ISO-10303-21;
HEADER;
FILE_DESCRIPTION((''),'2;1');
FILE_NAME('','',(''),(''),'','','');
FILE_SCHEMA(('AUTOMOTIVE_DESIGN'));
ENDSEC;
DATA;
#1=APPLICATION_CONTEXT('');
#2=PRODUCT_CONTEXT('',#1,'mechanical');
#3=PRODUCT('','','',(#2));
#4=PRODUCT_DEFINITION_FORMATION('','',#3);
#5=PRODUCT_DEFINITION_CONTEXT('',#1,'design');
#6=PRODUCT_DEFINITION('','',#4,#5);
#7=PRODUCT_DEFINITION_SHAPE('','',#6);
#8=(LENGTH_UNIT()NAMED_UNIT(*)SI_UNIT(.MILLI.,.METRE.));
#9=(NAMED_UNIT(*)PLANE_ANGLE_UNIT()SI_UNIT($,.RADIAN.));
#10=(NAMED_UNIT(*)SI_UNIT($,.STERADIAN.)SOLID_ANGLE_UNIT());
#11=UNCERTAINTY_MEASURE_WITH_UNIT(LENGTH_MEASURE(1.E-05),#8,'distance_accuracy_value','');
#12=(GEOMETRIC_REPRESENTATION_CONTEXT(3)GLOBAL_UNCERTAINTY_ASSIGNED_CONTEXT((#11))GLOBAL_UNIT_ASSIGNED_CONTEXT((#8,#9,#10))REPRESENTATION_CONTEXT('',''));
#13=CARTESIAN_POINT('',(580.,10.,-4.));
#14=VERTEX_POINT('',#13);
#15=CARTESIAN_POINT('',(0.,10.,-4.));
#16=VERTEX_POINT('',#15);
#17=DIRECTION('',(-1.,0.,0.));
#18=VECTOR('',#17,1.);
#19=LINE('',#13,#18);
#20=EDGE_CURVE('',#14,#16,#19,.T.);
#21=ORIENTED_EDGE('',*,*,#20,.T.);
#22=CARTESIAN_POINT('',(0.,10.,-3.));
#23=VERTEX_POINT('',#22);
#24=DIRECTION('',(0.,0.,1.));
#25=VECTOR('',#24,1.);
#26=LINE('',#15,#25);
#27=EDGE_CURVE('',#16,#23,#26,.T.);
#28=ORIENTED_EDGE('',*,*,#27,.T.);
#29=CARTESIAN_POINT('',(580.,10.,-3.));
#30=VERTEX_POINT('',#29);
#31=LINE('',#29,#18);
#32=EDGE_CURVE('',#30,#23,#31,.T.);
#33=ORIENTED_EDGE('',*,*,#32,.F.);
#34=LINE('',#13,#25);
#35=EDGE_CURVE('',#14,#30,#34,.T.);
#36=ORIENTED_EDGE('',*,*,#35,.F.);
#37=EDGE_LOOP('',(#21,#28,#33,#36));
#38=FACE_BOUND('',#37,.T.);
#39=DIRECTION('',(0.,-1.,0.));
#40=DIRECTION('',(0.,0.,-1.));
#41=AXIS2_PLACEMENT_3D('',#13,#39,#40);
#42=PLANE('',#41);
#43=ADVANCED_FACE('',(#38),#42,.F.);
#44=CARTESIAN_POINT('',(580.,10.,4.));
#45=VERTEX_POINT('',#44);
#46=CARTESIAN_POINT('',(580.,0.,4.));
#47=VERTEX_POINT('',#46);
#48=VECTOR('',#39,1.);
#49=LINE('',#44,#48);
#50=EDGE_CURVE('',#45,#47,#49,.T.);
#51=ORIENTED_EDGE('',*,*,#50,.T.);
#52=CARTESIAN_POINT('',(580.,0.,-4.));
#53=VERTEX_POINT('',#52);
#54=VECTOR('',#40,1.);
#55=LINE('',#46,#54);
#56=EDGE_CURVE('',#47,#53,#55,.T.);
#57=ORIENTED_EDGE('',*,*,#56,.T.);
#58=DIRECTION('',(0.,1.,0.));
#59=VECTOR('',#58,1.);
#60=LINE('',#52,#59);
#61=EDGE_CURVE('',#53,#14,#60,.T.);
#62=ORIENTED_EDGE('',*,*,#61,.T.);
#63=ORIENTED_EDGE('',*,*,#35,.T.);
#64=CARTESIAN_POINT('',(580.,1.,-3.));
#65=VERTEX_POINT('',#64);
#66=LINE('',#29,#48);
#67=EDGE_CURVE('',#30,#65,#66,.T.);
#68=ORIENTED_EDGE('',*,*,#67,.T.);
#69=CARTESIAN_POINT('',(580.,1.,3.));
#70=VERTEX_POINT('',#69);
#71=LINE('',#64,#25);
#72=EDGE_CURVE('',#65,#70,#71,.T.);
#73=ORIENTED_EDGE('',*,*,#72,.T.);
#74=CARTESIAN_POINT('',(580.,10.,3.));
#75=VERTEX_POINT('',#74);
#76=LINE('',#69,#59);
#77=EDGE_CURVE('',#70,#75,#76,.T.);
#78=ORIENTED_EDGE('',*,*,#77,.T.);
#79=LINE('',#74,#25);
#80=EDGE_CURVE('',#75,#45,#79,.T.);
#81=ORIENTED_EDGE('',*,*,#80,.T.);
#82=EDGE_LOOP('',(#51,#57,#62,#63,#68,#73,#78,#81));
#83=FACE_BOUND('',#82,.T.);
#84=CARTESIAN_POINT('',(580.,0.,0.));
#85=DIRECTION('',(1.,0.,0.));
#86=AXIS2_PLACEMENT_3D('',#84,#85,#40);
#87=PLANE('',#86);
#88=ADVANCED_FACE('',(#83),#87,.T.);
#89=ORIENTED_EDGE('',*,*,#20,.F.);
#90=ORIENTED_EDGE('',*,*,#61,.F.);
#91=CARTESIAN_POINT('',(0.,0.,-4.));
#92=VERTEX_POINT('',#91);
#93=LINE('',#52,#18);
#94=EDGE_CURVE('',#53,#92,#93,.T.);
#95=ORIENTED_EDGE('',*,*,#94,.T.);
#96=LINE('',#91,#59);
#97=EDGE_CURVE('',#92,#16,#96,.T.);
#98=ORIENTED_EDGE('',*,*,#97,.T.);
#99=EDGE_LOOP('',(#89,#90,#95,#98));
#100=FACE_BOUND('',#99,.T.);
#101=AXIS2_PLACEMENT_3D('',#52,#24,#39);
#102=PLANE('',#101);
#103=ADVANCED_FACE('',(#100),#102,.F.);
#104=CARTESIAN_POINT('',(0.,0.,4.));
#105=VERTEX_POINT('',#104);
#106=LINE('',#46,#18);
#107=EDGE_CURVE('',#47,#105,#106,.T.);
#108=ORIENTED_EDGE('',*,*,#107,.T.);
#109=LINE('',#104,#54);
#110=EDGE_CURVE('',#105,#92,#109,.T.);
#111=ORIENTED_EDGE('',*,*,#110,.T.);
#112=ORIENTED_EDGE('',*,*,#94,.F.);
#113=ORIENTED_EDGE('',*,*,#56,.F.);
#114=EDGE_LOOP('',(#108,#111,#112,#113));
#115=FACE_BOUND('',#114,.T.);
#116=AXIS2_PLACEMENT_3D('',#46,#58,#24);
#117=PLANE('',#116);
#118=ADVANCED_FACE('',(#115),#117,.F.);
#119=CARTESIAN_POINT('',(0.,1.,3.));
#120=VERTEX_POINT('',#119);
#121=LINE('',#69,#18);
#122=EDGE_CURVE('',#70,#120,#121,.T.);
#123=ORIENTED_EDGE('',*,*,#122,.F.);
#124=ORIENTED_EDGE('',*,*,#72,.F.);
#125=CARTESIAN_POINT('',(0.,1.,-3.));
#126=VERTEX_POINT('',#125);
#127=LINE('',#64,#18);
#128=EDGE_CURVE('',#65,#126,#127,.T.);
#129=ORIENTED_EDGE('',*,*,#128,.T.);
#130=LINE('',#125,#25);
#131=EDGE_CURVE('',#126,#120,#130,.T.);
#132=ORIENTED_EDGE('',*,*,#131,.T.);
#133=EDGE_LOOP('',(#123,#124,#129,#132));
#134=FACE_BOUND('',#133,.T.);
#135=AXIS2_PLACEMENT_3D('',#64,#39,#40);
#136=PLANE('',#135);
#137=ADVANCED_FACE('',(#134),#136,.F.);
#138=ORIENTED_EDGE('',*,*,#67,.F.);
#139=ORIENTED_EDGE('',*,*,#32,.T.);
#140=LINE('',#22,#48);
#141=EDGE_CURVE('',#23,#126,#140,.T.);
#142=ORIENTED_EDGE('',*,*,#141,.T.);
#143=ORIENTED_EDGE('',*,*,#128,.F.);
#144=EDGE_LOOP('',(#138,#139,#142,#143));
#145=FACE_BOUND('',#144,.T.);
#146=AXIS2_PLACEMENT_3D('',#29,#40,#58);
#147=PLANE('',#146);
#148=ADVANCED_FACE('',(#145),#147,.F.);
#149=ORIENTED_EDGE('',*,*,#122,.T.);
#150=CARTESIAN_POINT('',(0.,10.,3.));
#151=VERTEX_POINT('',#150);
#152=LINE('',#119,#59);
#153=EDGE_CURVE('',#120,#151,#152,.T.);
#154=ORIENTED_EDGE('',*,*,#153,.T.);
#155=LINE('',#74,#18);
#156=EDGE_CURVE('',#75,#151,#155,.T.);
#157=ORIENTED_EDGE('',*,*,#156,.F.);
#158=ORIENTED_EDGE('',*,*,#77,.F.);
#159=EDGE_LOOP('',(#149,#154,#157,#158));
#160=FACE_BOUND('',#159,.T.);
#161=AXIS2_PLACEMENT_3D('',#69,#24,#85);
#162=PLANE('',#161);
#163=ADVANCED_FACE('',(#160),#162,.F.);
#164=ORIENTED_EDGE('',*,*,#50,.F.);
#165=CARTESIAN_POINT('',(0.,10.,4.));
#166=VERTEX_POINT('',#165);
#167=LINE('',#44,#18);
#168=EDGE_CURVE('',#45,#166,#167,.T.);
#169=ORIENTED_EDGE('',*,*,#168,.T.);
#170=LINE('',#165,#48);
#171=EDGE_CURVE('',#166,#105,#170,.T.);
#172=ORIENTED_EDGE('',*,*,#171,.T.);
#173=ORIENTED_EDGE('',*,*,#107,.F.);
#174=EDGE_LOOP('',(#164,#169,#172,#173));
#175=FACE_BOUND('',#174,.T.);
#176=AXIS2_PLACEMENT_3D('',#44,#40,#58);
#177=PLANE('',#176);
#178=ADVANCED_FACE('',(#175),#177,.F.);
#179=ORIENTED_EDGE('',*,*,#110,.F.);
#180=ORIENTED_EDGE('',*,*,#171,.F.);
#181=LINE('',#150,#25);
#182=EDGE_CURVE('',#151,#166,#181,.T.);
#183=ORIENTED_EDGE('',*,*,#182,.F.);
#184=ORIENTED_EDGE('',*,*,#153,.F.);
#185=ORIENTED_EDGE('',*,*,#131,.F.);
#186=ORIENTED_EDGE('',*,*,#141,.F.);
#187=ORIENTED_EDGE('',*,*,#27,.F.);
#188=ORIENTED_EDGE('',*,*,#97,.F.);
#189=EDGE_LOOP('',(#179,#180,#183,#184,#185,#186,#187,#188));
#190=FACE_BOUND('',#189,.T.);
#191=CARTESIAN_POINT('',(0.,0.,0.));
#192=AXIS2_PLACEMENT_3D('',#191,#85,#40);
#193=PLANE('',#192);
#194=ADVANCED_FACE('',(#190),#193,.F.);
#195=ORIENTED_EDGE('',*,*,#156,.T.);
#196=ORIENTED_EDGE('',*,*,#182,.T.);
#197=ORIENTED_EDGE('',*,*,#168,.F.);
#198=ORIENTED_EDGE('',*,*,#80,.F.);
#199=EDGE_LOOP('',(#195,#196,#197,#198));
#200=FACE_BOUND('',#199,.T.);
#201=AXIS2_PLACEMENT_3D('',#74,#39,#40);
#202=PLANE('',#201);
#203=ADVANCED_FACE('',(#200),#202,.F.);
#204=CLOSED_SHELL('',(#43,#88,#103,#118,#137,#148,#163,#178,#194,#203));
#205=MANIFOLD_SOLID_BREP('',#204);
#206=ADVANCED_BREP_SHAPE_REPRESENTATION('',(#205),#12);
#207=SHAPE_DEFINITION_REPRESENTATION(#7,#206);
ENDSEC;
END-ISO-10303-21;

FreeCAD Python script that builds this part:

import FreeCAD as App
import Part
import Sketcher

V = App.Vector
Q = App.Units.Quantity


def add_polygon(sketch, points):
    """Adds a closed chain of lines whose ends are joined by coincident constraints."""
    first, n = sketch.GeometryCount, len(points)
    for a, b in zip(points, points[1:] + points[:1]):
        sketch.addGeometry(Part.LineSegment(App.Vector(*a, 0), App.Vector(*b, 0)), False)
    for i in range(n):
        sketch.addConstraint(Sketcher.Constraint("Coincident", first + i, 2, first + (i + 1) % n, 1))

doc = App.newDocument("Part")
params = doc.addObject("Spreadsheet::Sheet", "Params")
for row, (alias, value) in enumerate([
    ("sketch1_width", "10 mm"),
    ("sketch1_width2", "9 mm"),
    ("sketch1_height", "8 mm"),
    ("sketch1_height2", "1 mm"),
    ("pad1_length", "580 mm"),
], start=1):
    params.set(f"A{row}", alias)
    params.set(f"B{row}", "=" + value)
    params.setAlias(f"B{row}", alias)

body = doc.addObject("PartDesign::Body", "Body")

sketch1 = doc.addObject("Sketcher::SketchObject", "Sketch")
body.addObject(sketch1)
sketch1.AttachmentSupport = (doc.YZ_Plane, [""])
sketch1.MapMode = "FlatFace"
add_polygon(sketch1, [(0, 4), (0, -4), (10, -4), (10, -3), (1, -3), (1, 3), (10, 3), (10, 4)])
sketch1.addConstraint([
    Sketcher.Constraint("Vertical", 0),
    Sketcher.Constraint("Horizontal", 1),
    Sketcher.Constraint("Vertical", 2),
    Sketcher.Constraint("Horizontal", 3),
    Sketcher.Constraint("Vertical", 4),
    Sketcher.Constraint("Horizontal", 5),
    Sketcher.Constraint("Vertical", 6),
    Sketcher.Constraint("Horizontal", 7),
    Sketcher.Constraint("Symmetric", 0, 2, 7, 2, -1, 1),
    Sketcher.Constraint("Symmetric", 2, 2, 5, 2, -1),
    Sketcher.Constraint("DistanceX", 1, 1, 1, 2, Q("10 mm")),
    Sketcher.Constraint("DistanceX", 3, 2, 3, 1, Q("9 mm")),
    Sketcher.Constraint("DistanceY", 0, 2, 0, 1, Q("8 mm")),
    Sketcher.Constraint("DistanceY", 2, 1, 2, 2, Q("1 mm")),
])
sketch1.setExpression("Constraints[18]", "Params.sketch1_width")
sketch1.setExpression("Constraints[19]", "Params.sketch1_width2")
sketch1.setExpression("Constraints[20]", "Params.sketch1_height")
sketch1.setExpression("Constraints[21]", "Params.sketch1_height2")
pad1 = doc.addObject("PartDesign::Pad", "Pad")
body.addObject(pad1)
pad1.Profile = sketch1
pad1.setExpression("Length", "Params.pad1_length")

doc.recompute()
